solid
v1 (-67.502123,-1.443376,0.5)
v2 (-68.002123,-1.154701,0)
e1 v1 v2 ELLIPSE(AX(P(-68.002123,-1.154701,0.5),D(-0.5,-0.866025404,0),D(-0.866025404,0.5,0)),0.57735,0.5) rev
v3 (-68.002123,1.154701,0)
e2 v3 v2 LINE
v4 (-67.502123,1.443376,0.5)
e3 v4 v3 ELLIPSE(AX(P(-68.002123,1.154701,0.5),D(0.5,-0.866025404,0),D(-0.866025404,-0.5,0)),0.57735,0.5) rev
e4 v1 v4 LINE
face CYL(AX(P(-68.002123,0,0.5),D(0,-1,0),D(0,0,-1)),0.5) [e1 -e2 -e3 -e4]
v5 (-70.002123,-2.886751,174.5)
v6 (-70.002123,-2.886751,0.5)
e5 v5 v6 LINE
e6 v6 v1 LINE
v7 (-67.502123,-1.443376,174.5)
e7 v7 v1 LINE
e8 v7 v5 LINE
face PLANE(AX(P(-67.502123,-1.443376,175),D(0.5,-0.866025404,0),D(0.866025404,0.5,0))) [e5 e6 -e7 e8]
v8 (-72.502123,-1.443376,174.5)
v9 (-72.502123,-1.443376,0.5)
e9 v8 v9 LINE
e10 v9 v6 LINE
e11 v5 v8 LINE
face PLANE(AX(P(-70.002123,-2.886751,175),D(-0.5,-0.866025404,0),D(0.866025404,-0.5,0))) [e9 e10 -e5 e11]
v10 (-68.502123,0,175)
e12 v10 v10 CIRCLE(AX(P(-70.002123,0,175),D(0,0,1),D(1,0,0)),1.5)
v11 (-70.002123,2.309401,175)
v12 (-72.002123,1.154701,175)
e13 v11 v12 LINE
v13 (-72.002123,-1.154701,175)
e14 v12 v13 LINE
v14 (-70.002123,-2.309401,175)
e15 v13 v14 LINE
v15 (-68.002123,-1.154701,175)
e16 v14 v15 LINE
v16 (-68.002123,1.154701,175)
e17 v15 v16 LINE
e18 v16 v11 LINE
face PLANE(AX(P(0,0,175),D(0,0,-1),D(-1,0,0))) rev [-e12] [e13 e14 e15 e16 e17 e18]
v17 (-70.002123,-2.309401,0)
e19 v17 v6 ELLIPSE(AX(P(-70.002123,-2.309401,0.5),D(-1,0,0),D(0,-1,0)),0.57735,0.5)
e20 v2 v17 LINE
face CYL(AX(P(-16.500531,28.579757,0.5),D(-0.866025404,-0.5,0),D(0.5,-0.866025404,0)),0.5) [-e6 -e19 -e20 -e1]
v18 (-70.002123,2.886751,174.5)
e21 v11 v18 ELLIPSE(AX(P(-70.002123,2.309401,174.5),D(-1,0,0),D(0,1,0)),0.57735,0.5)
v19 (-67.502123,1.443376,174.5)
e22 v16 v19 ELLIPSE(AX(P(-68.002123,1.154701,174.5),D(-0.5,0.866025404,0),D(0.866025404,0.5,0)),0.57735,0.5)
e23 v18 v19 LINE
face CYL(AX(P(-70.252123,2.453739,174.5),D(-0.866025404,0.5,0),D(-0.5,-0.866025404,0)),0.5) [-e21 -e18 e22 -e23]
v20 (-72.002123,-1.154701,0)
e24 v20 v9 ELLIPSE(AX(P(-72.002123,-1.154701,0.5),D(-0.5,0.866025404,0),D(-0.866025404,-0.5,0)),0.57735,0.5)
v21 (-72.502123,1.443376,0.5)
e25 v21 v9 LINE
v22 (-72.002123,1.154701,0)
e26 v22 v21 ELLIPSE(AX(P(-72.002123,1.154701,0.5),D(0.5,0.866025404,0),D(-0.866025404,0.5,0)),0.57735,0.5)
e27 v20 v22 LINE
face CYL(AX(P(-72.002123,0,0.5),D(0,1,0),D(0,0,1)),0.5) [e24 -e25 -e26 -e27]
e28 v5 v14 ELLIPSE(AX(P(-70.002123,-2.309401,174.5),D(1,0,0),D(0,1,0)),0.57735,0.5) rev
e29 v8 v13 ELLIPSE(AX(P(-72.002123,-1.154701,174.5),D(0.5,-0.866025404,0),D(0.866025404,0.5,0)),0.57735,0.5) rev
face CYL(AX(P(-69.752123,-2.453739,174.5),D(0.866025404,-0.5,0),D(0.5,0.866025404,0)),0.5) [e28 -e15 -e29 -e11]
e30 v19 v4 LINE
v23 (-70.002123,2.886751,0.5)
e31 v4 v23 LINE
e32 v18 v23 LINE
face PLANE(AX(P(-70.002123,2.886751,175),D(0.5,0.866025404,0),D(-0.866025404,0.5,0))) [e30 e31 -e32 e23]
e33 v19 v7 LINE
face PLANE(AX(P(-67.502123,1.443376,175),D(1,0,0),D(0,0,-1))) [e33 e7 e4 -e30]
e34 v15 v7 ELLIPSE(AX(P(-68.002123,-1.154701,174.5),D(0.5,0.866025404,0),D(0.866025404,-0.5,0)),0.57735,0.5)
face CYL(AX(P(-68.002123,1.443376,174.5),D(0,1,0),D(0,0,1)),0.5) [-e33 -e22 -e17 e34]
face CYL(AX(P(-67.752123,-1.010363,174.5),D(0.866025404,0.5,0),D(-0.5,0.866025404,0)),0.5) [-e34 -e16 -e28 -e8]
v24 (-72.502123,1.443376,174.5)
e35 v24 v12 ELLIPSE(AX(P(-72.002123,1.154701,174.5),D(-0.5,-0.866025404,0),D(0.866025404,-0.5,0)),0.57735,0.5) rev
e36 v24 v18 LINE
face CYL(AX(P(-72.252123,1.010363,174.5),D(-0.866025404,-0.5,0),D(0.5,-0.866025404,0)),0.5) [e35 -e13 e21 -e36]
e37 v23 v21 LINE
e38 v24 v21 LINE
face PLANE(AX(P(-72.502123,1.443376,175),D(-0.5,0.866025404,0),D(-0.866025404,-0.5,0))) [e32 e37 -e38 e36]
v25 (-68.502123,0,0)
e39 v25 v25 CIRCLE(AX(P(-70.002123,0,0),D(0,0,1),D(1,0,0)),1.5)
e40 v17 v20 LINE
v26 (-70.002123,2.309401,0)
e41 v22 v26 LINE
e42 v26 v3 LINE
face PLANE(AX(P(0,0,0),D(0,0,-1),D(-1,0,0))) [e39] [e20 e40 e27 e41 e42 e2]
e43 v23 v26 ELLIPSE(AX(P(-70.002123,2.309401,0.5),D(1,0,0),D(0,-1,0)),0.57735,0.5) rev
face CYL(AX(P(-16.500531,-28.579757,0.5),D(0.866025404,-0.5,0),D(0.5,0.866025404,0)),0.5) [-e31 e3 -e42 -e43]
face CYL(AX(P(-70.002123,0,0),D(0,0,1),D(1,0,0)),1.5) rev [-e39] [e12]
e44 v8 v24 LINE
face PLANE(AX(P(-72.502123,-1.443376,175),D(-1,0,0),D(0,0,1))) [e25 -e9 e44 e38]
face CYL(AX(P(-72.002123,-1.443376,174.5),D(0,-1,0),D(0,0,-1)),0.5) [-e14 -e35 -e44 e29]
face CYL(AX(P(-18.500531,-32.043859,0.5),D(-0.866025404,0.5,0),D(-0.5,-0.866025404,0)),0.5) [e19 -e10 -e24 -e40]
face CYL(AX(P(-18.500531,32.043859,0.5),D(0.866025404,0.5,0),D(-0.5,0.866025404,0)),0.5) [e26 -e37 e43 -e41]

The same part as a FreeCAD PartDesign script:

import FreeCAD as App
import Part
import Sketcher

V = App.Vector
Q = App.Units.Quantity


def edges_at(feature, points):
    """Names of the edges that pass closest to the given points."""
    edges = feature.Shape.Edges
    near = lambda p: min(range(len(edges)), key=lambda i: edges[i].distToShape(Part.Vertex(*p))[0])
    return sorted({f"Edge{near(p) + 1}" for p in points})


def add_polygon(sketch, points):
    """Adds a closed chain of lines whose ends are joined by coincident constraints."""
    first, n = sketch.GeometryCount, len(points)
    for a, b in zip(points, points[1:] + points[:1]):
        sketch.addGeometry(Part.LineSegment(App.Vector(*a, 0), App.Vector(*b, 0)), False)
    for i in range(n):
        sketch.addConstraint(Sketcher.Constraint("Coincident", first + i, 2, first + (i + 1) % n, 1))

doc = App.newDocument("Part")
params = doc.addObject("Spreadsheet::Sheet", "Params")
for row, (alias, value) in enumerate([
    ("pad1_length", "175 mm"),
    ("fillet_radius", "0.5 mm"),
    ("sketch2_diameter", "3 mm"),
], start=1):
    params.set(f"A{row}", alias)
    params.set(f"B{row}", "=" + value)
    params.setAlias(f"B{row}", alias)

body = doc.addObject("PartDesign::Body", "Body")

# Sketch on XY plane
sketch1 = body.newObject("Sketcher::SketchObject", "Sketch")
sketch1.AttachmentSupport = (doc.getObject("XY_Plane"), [""])
sketch1.MapMode = "FlatFace"
add_polygon(sketch1, [(-67.502123, -1.443376), (-70.002123, -2.886751), (-72.502123, -1.443376), (-72.502123, 1.443376), (-70.002123, 2.886751), (-67.502123, 1.443376)])  # lines 0-5
sketch1.addConstraint(Sketcher.Constraint("Vertical", 2))
sketch1.addConstraint(Sketcher.Constraint("Vertical", 5))
sketch1.addConstraint(Sketcher.Constraint("Symmetric", 0, 2, 3, 2, -1))
sketch1.addConstraint(Sketcher.Constraint("Parallel", 0, 3))
sketch1.addConstraint(Sketcher.Constraint("Parallel", 1, 4))
sketch1.addConstraint(Sketcher.Constraint("Horizontal", 2, 2, 4, 2))
sketch1.addConstraint(Sketcher.Constraint("Horizontal", 1, 2, 5, 2))
sketch1.addConstraint(Sketcher.Constraint("Angle", 0, Q("-150 deg")))
sketch1.addConstraint(Sketcher.Constraint("DistanceX", 2, 2, 4, 2, Q("5 mm")))
sketch1.addConstraint(Sketcher.Constraint("DistanceY", 2, 1, 2, 2, Q("2.886751 mm")))
sketch1.addConstraint(Sketcher.Constraint("DistanceX", 0, 2, -1, 1, Q("70.002123 mm")))
pad1 = body.newObject("PartDesign::Pad", "Pad")
pad1.Profile = sketch1
pad1.setExpression("Length", "Params.pad1_length")
doc.recompute()

fillet = body.newObject("PartDesign::Fillet", "Fillet")
fillet.Base = (pad1, edges_at(pad1, [
    (-71.252, -2.165, 175),
    (-72.502, 0, 175),
    (-71.252, 2.165, 175),
    (-68.752, 2.165, 175),
    (-67.502, 0, 175),
    (-68.752, 2.165, 0),
    (-71.252, 2.165, 0),
    (-72.502, 0, 0),
    (-71.252, -2.165, 0),
    (-68.752, -2.165, 0),
    (-67.502, 0, 0),
    (-68.752, -2.165, 175),
]))
fillet.setExpression("Radius", "Params.fillet_radius")

# Sketch on XY plane
sketch2 = body.newObject("Sketcher::SketchObject", "Sketch001")
sketch2.AttachmentSupport = (doc.getObject("XY_Plane"), [""])
sketch2.MapMode = "FlatFace"
sketch2.AttachmentOffset = App.Placement(V(0, 0, 175), App.Rotation())
sketch2.addGeometry(Part.Circle(V(-70.002123, 0, 0), V(0, 0, 1), 1.5), False)
sketch2.addConstraint(Sketcher.Constraint("PointOnObject", 0, 3, -1))
sketch2.addConstraint(Sketcher.Constraint("Diameter", 0, Q("3 mm")))
sketch2.addConstraint(Sketcher.Constraint("DistanceX", 0, 3, -1, 1, Q("70.002123 mm")))
sketch2.setExpression("Constraints[1]", "Params.sketch2_diameter")
pocket1 = body.newObject("PartDesign::Pocket", "Pocket")
pocket1.Profile = sketch2
pocket1.Type = "ThroughAll"

doc.recompute()
